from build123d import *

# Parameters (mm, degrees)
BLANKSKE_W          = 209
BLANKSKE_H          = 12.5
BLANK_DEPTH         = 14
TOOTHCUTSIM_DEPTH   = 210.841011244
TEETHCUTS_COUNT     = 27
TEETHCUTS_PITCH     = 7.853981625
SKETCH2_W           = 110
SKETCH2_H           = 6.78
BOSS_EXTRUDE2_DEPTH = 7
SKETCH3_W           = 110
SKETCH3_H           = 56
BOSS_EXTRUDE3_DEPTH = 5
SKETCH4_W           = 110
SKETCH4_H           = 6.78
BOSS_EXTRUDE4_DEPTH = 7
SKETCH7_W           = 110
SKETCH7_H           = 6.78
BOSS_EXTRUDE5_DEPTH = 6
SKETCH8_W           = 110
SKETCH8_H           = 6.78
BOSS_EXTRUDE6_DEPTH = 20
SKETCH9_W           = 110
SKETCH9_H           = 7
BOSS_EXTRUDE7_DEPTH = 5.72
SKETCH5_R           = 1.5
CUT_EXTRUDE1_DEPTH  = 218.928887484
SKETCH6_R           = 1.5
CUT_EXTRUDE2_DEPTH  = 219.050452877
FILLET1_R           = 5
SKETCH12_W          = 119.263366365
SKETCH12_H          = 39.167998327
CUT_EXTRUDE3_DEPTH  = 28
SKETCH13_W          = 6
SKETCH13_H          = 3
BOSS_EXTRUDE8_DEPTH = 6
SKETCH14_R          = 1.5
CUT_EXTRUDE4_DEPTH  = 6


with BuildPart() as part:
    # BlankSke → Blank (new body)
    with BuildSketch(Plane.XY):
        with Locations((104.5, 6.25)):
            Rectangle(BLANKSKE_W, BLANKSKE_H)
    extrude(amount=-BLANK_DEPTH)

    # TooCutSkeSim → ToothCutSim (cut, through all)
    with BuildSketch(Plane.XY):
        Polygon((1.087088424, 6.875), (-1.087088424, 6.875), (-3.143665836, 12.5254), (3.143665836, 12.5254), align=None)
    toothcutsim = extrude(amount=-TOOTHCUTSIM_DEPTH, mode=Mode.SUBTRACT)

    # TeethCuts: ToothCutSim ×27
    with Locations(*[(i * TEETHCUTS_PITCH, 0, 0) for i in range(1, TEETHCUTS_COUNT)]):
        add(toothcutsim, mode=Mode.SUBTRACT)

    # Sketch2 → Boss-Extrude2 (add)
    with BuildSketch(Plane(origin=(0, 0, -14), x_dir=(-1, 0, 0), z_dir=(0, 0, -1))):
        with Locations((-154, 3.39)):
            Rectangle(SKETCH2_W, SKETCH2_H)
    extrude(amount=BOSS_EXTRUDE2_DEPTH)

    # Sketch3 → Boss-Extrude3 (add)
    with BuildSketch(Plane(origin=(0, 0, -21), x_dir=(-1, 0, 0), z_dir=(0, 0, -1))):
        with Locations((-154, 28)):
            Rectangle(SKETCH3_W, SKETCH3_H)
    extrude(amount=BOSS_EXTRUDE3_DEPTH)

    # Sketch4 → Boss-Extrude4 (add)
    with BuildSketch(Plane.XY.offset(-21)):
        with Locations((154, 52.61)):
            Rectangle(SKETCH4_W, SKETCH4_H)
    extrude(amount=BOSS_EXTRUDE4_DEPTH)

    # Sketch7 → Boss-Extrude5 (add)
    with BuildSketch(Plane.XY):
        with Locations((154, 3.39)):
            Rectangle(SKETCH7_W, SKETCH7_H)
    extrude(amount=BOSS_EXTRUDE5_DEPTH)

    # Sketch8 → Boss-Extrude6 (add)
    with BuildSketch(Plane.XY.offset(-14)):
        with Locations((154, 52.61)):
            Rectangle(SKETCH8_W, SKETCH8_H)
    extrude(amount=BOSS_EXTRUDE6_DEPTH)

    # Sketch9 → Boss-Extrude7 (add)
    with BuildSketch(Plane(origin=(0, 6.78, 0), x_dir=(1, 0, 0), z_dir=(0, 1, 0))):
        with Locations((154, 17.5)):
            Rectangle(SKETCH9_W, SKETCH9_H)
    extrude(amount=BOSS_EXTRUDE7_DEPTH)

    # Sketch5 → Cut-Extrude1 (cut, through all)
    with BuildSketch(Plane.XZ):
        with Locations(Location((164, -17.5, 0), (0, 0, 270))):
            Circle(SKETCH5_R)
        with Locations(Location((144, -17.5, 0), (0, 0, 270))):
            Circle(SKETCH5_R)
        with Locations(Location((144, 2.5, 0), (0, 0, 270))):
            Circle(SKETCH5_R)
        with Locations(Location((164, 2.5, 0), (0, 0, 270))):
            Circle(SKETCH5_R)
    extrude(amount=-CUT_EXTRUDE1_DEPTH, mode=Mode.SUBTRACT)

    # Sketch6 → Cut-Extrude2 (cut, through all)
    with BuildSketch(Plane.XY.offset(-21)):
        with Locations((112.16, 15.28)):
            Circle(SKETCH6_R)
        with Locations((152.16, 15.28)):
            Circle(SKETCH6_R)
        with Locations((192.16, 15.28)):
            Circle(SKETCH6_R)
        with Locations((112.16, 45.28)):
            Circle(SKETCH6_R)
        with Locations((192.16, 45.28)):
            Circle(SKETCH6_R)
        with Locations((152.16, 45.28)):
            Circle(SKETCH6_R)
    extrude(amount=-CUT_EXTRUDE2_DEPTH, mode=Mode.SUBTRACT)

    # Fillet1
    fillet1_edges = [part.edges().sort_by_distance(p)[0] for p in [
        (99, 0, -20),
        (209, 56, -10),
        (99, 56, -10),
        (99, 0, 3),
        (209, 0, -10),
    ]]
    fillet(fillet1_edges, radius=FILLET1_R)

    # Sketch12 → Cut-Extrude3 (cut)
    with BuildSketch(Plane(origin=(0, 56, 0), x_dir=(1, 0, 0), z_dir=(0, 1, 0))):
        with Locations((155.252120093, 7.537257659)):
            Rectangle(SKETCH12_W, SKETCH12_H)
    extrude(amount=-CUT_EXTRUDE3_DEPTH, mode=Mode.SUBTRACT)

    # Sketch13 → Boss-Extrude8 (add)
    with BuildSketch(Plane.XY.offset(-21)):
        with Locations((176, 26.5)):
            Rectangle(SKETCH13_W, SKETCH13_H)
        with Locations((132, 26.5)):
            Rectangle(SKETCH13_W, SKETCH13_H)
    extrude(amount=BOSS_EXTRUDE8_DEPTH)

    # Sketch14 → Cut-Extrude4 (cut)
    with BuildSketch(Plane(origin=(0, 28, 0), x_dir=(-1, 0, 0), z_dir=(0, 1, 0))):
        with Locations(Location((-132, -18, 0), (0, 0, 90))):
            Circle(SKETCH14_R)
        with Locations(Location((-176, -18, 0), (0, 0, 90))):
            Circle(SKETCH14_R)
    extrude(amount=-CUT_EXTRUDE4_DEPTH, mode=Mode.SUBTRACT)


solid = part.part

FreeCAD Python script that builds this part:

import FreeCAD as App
import Part
import Sketcher
from FreeCAD import Vector
Q = App.Units.Quantity


def edges_at(feature, points):
    """Names of the edges that pass closest to the given points."""
    edges = feature.Shape.Edges
    near = lambda p: min(range(len(edges)), key=lambda i: edges[i].distToShape(Part.Vertex(*p))[0])
    return sorted({f"Edge{near(p) + 1}" for p in points})

doc = App.newDocument("Part")
body = doc.addObject("PartDesign::Body", "Body")

# Sketch on XY plane
sketch1 = body.newObject("Sketcher::SketchObject", "Sketch")
sketch1.AttachmentSupport = (doc.getObject("XY_Plane"), [""])
sketch1.MapMode = "FlatFace"
sketch1.addGeometry([
    Part.LineSegment(Vector(0, 12, 0), Vector(0, 0, 0)),
    Part.LineSegment(Vector(0, 0, 0), Vector(209, 0, 0)),
    Part.LineSegment(Vector(209, 0, 0), Vector(209, 12, 0)),
    Part.LineSegment(Vector(209, 12, 0), Vector(0, 12, 0)),
], False)
sketch1.addConstraint([
    Sketcher.Constraint("Coincident", 0, 2, 1, 1),
    Sketcher.Constraint("Coincident", 1, 2, 2, 1),
    Sketcher.Constraint("Coincident", 2, 2, 3, 1),
    Sketcher.Constraint("Coincident", 3, 2, 0, 1),
    Sketcher.Constraint("Vertical", 0),
    Sketcher.Constraint("Horizontal", 1),
    Sketcher.Constraint("Vertical", 2),
    Sketcher.Constraint("Horizontal", 3),
    Sketcher.Constraint("Coincident", 0, 2, -1, 1),
    Sketcher.Constraint("DistanceX", 1, 1, 1, 2, Q("209 mm")),
    Sketcher.Constraint("DistanceY", 0, 2, 0, 1, Q("12.5 mm")),
])
pad1 = body.newObject("PartDesign::Pad", "Pad")
pad1.Profile = sketch1
pad1.Length = 14
pad1.Reversed = True

# Sketch on XY plane
sketch2 = body.newObject("Sketcher::SketchObject", "Sketch001")
sketch2.AttachmentSupport = (doc.getObject("XY_Plane"), [""])
sketch2.MapMode = "FlatFace"
sketch2.addGeometry([
    Part.LineSegment(Vector(-1.1, 6.9, 0), Vector(1.1, 6.9, 0)),
    Part.LineSegment(Vector(1.1, 6.9, 0), Vector(3.1, 12.5, 0)),
    Part.LineSegment(Vector(3.1, 12.5, 0), Vector(-3.1, 12.5, 0)),
    Part.LineSegment(Vector(-3.1, 12.5, 0), Vector(-1.1, 6.9, 0)),
], False)
sketch2.addConstraint([
    Sketcher.Constraint("Coincident", 0, 2, 1, 1),
    Sketcher.Constraint("Coincident", 1, 2, 2, 1),
    Sketcher.Constraint("Coincident", 2, 2, 3, 1),
    Sketcher.Constraint("Coincident", 3, 2, 0, 1),
    Sketcher.Constraint("Horizontal", 0),
    Sketcher.Constraint("Horizontal", 2),
    Sketcher.Constraint("Equal", 1, 3),
    Sketcher.Constraint("Angle", 1, Q("70 deg")),
    Sketcher.Constraint("DistanceY", -1, 1, 0, 2, Q("6.875 mm")),
    Sketcher.Constraint("DistanceX", 2, 2, 2, 1, Q("6.287332 mm")),
    Sketcher.Constraint("DistanceY", -1, 1, 1, 2, Q("12.5254 mm")),
    Sketcher.Constraint("DistanceX", -1, 1, 0, 2, Q("1.087088 mm")),
])
pocket1 = body.newObject("PartDesign::Pocket", "Pocket")
pocket1.Profile = sketch2
pocket1.Type = "ThroughAll"
doc.recompute()

linearpattern = body.newObject("PartDesign::LinearPattern", "LinearPattern")
linearpattern.Originals = [pocket1]
linearpattern.Direction = (doc.getObject("X_Axis"), [""])
linearpattern.Mode = "offset"
linearpattern.Offset = 7.853982
linearpattern.Occurrences = 27
body.Tip = linearpattern

# Sketch on XY plane
sketch3 = body.newObject("Sketcher::SketchObject", "Sketch002")
sketch3.AttachmentSupport = (doc.getObject("XY_Plane"), [""])
sketch3.MapMode = "FlatFace"
sketch3.AttachmentOffset = App.Placement(Vector(0, 0, -14), App.Rotation())
sketch3.addGeometry([
    Part.LineSegment(Vector(209, 7, 0), Vector(209, 0, 0)),
    Part.LineSegment(Vector(209, 0, 0), Vector(99, 0, 0)),
    Part.LineSegment(Vector(99, 0, 0), Vector(99, 7, 0)),
    Part.LineSegment(Vector(99, 7, 0), Vector(209, 7, 0)),
], False)
sketch3.addConstraint([
    Sketcher.Constraint("Coincident", 0, 2, 1, 1),
    Sketcher.Constraint("Coincident", 1, 2, 2, 1),
    Sketcher.Constraint("Coincident", 2, 2, 3, 1),
    Sketcher.Constraint("Coincident", 3, 2, 0, 1),
    Sketcher.Constraint("Vertical", 0),
    Sketcher.Constraint("Horizontal", 1),
    Sketcher.Constraint("Vertical", 2),
    Sketcher.Constraint("Horizontal", 3),
    Sketcher.Constraint("PointOnObject", 0, 2, -1),
    Sketcher.Constraint("DistanceX", 1, 2, 1, 1, Q("110 mm")),
    Sketcher.Constraint("DistanceX", -1, 1, 0, 2, Q("209 mm")),
    Sketcher.Constraint("DistanceY", 0, 2, 0, 1, Q("6.78 mm")),
])
pad2 = body.newObject("PartDesign::Pad", "Pad001")
pad2.Profile = sketch3
pad2.Length = 7
pad2.Reversed = True

# Sketch on XY plane
sketch4 = body.newObject("Sketcher::SketchObject", "Sketch003")
sketch4.AttachmentSupport = (doc.getObject("XY_Plane"), [""])
sketch4.MapMode = "FlatFace"
sketch4.AttachmentOffset = App.Placement(Vector(0, 0, -21), App.Rotation())
sketch4.addGeometry([
    Part.LineSegment(Vector(209, 56, 0), Vector(209, 0, 0)),
    Part.LineSegment(Vector(209, 0, 0), Vector(99, 0, 0)),
    Part.LineSegment(Vector(99, 0, 0), Vector(99, 56, 0)),
    Part.LineSegment(Vector(99, 56, 0), Vector(209, 56, 0)),
], False)
sketch4.addConstraint([
    Sketcher.Constraint("Coincident", 0, 2, 1, 1),
    Sketcher.Constraint("Coincident", 1, 2, 2, 1),
    Sketcher.Constraint("Coincident", 2, 2, 3, 1),
    Sketcher.Constraint("Coincident", 3, 2, 0, 1),
    Sketcher.Constraint("Vertical", 0),
    Sketcher.Constraint("Horizontal", 1),
    Sketcher.Constraint("Vertical", 2),
    Sketcher.Constraint("Horizontal", 3),
    Sketcher.Constraint("PointOnObject", 0, 2, -1),
    Sketcher.Constraint("DistanceX", 1, 2, 1, 1, Q("110 mm")),
    Sketcher.Constraint("DistanceY", 0, 2, 0, 1, Q("56 mm")),
    Sketcher.Constraint("DistanceX", -1, 1, 0, 2, Q("209 mm")),
])
pad3 = body.newObject("PartDesign::Pad", "Pad002")
pad3.Profile = sketch4
pad3.Length = 5
pad3.Reversed = True

# Sketch on XY plane
sketch5 = body.newObject("Sketcher::SketchObject", "Sketch004")
sketch5.AttachmentSupport = (doc.getObject("XY_Plane"), [""])
sketch5.MapMode = "FlatFace"
sketch5.AttachmentOffset = App.Placement(Vector(0, 0, -21), App.Rotation())
sketch5.addGeometry([
    Part.LineSegment(Vector(99, 56, 0), Vector(99, 49, 0)),
    Part.LineSegment(Vector(99, 49, 0), Vector(209, 49, 0)),
    Part.LineSegment(Vector(209, 49, 0), Vector(209, 56, 0)),
    Part.LineSegment(Vector(209, 56, 0), Vector(99, 56, 0)),
], False)
sketch5.addConstraint([
    Sketcher.Constraint("Coincident", 0, 2, 1, 1),
    Sketcher.Constraint("Coincident", 1, 2, 2, 1),
    Sketcher.Constraint("Coincident", 2, 2, 3, 1),
    Sketcher.Constraint("Coincident", 3, 2, 0, 1),
    Sketcher.Constraint("Vertical", 0),
    Sketcher.Constraint("Horizontal", 1),
    Sketcher.Constraint("Vertical", 2),
    Sketcher.Constraint("Horizontal", 3),
    Sketcher.Constraint("DistanceX", 1, 1, 1, 2, Q("110 mm")),
    Sketcher.Constraint("DistanceX", -1, 1, 0, 2, Q("99 mm")),
    Sketcher.Constraint("DistanceY", -1, 1, 2, 2, Q("56 mm")),
    Sketcher.Constraint("DistanceY", 0, 2, 0, 1, Q("6.78 mm")),
])
pad4 = body.newObject("PartDesign::Pad", "Pad003")
pad4.Profile = sketch5
pad4.Length = 7

# Sketch on XY plane
sketch6 = body.newObject("Sketcher::SketchObject", "Sketch005")
sketch6.AttachmentSupport = (doc.getObject("XY_Plane"), [""])
sketch6.MapMode = "FlatFace"
sketch6.addGeometry([
    Part.LineSegment(Vector(99, 7, 0), Vector(99, 0, 0)),
    Part.LineSegment(Vector(99, 0, 0), Vector(209, 0, 0)),
    Part.LineSegment(Vector(209, 0, 0), Vector(209, 7, 0)),
    Part.LineSegment(Vector(209, 7, 0), Vector(99, 7, 0)),
], False)
sketch6.addConstraint([
    Sketcher.Constraint("Coincident", 0, 2, 1, 1),
    Sketcher.Constraint("Coincident", 1, 2, 2, 1),
    Sketcher.Constraint("Coincident", 2, 2, 3, 1),
    Sketcher.Constraint("Coincident", 3, 2, 0, 1),
    Sketcher.Constraint("Vertical", 0),
    Sketcher.Constraint("Horizontal", 1),
    Sketcher.Constraint("Vertical", 2),
    Sketcher.Constraint("Horizontal", 3),
    Sketcher.Constraint("PointOnObject", 0, 2, -1),
    Sketcher.Constraint("DistanceX", 1, 1, 1, 2, Q("110 mm")),
    Sketcher.Constraint("DistanceX", -1, 1, 0, 2, Q("99 mm")),
    Sketcher.Constraint("DistanceY", 0, 2, 0, 1, Q("6.78 mm")),
])
pad5 = body.newObject("PartDesign::Pad", "Pad004")
pad5.Profile = sketch6
pad5.Length = 6

# Sketch on XY plane
sketch7 = body.newObject("Sketcher::SketchObject", "Sketch006")
sketch7.AttachmentSupport = (doc.getObject("XY_Plane"), [""])
sketch7.MapMode = "FlatFace"
sketch7.AttachmentOffset = App.Placement(Vector(0, 0, -14), App.Rotation())
sketch7.addGeometry([
    Part.LineSegment(Vector(99, 56, 0), Vector(99, 49, 0)),
    Part.LineSegment(Vector(99, 49, 0), Vector(209, 49, 0)),
    Part.LineSegment(Vector(209, 49, 0), Vector(209, 56, 0)),
    Part.LineSegment(Vector(209, 56, 0), Vector(99, 56, 0)),
], False)
sketch7.addConstraint([
    Sketcher.Constraint("Coincident", 0, 2, 1, 1),
    Sketcher.Constraint("Coincident", 1, 2, 2, 1),
    Sketcher.Constraint("Coincident", 2, 2, 3, 1),
    Sketcher.Constraint("Coincident", 3, 2, 0, 1),
    Sketcher.Constraint("Vertical", 0),
    Sketcher.Constraint("Horizontal", 1),
    Sketcher.Constraint("Vertical", 2),
    Sketcher.Constraint("Horizontal", 3),
    Sketcher.Constraint("DistanceX", 1, 1, 1, 2, Q("110 mm")),
    Sketcher.Constraint("DistanceX", -1, 1, 0, 2, Q("99 mm")),
    Sketcher.Constraint("DistanceY", -1, 1, 2, 2, Q("56 mm")),
    Sketcher.Constraint("DistanceY", 0, 2, 0, 1, Q("6.78 mm")),
])
pad6 = body.newObject("PartDesign::Pad", "Pad005")
pad6.Profile = sketch7
pad6.Length = 20

# Sketch on XZ plane
sketch8 = body.newObject("Sketcher::SketchObject", "Sketch007")
sketch8.AttachmentSupport = (doc.getObject("XZ_Plane"), [""])
sketch8.MapMode = "FlatFace"
sketch8.AttachmentOffset = App.Placement(Vector(0, 0, -6.78), App.Rotation())
sketch8.addGeometry([
    Part.LineSegment(Vector(99, -21, 0), Vector(99, -14, 0)),
    Part.LineSegment(Vector(99, -14, 0), Vector(209, -14, 0)),
    Part.LineSegment(Vector(209, -14, 0), Vector(209, -21, 0)),
    Part.LineSegment(Vector(209, -21, 0), Vector(99, -21, 0)),
], False)
sketch8.addConstraint([
    Sketcher.Constraint("Coincident", 0, 2, 1, 1),
    Sketcher.Constraint("Coincident", 1, 2, 2, 1),
    Sketcher.Constraint("Coincident", 2, 2, 3, 1),
    Sketcher.Constraint("Coincident", 3, 2, 0, 1),
    Sketcher.Constraint("Vertical", 0),
    Sketcher.Constraint("Horizontal", 1),
    Sketcher.Constraint("Vertical", 2),
    Sketcher.Constraint("Horizontal", 3),
    Sketcher.Constraint("DistanceX", 1, 1, 1, 2, Q("110 mm")),
    Sketcher.Constraint("DistanceY", 0, 1, 0, 2, Q("7 mm")),
    Sketcher.Constraint("DistanceX", -1, 1, 0, 2, Q("99 mm")),
    Sketcher.Constraint("DistanceY", 0, 2, -1, 1, Q("14 mm")),
])
pad7 = body.newObject("PartDesign::Pad", "Pad006")
pad7.Profile = sketch8
pad7.Length = 5.72
pad7.Reversed = True

# Sketch on XZ plane
sketch9 = body.newObject("Sketcher::SketchObject", "Sketch008")
sketch9.AttachmentSupport = (doc.getObject("XZ_Plane"), [""])
sketch9.MapMode = "FlatFace"
sketch9.addGeometry([
    Part.Circle(Vector(164, -17.5, 0), Vector(0, 0, 1), 1.5),
    Part.Circle(Vector(144, -17.5, 0), Vector(0, 0, 1), 1.5),
    Part.Circle(Vector(144, 2.5, 0), Vector(0, 0, 1), 1.5),
    Part.Circle(Vector(164, 2.5, 0), Vector(0, 0, 1), 1.5),
], False)
sketch9.addConstraint([
    Sketcher.Constraint("Equal", 0, 1),
    Sketcher.Constraint("Equal", 1, 2),
    Sketcher.Constraint("Equal", 2, 3),
    Sketcher.Constraint("Horizontal", 0, 3, 1, 3),
    Sketcher.Constraint("Horizontal", 2, 3, 3, 3),
    Sketcher.Constraint("Vertical", 1, 3, 2, 3),
    Sketcher.Constraint("Vertical", 0, 3, 3, 3),
    Sketcher.Constraint("Diameter", 0, Q("3 mm")),
    Sketcher.Constraint("DistanceX", -1, 1, 0, 3, Q("164 mm")),
    Sketcher.Constraint("DistanceX", -1, 1, 1, 3, Q("144 mm")),
    Sketcher.Constraint("DistanceY", 1, 3, 2, 3, Q("20 mm")),
    Sketcher.Constraint("DistanceY", 0, 3, -1, 1, Q("17.5 mm")),
])
pocket2 = body.newObject("PartDesign::Pocket", "Pocket001")
pocket2.Profile = sketch9
pocket2.Type = "ThroughAll"

# Sketch on XY plane
sketch10 = body.newObject("Sketcher::SketchObject", "Sketch009")
sketch10.AttachmentSupport = (doc.getObject("XY_Plane"), [""])
sketch10.MapMode = "FlatFace"
sketch10.AttachmentOffset = App.Placement(Vector(0, 0, -21), App.Rotation())
sketch10.addGeometry([
    Part.Circle(Vector(112.2, 15.3, 0), Vector(0, 0, 1), 1.5),  # 0
    Part.Circle(Vector(152.2, 15.3, 0), Vector(0, 0, 1), 1.5),  # 1
    Part.Circle(Vector(192.2, 15.3, 0), Vector(0, 0, 1), 1.5),  # 2
    Part.Circle(Vector(112.2, 45.3, 0), Vector(0, 0, 1), 1.5),  # 3
    Part.Circle(Vector(192.2, 45.3, 0), Vector(0, 0, 1), 1.5),  # 4
    Part.Circle(Vector(152.2, 45.3, 0), Vector(0, 0, 1), 1.5),  # 5
], False)
sketch10.addConstraint([
    Sketcher.Constraint("Equal", 0, 1),
    Sketcher.Constraint("Equal", 1, 2),
    Sketcher.Constraint("Equal", 2, 3),
    Sketcher.Constraint("Equal", 3, 4),
    Sketcher.Constraint("Equal", 4, 5),
    Sketcher.Constraint("Horizontal", 0, 3, 1, 3),
    Sketcher.Constraint("Horizontal", 1, 3, 2, 3),
    Sketcher.Constraint("Horizontal", 3, 3, 4, 3),
    Sketcher.Constraint("Horizontal", 4, 3, 5, 3),
    Sketcher.Constraint("Vertical", 0, 3, 3, 3),
    Sketcher.Constraint("Vertical", 2, 3, 4, 3),
    Sketcher.Constraint("Vertical", 1, 3, 5, 3),
    Sketcher.Constraint("Diameter", 0, Q("3 mm")),
    Sketcher.Constraint("DistanceX", 0, 3, 1, 3, Q("40 mm")),
    Sketcher.Constraint("DistanceX", 1, 3, 2, 3, Q("40 mm")),
    Sketcher.Constraint("DistanceY", 0, 3, 3, 3, Q("30 mm")),
    Sketcher.Constraint("DistanceX", -1, 1, 0, 3, Q("112.16 mm")),
    Sketcher.Constraint("DistanceY", -1, 1, 0, 3, Q("15.28 mm")),
])
pocket3 = body.newObject("PartDesign::Pocket", "Pocket002")
pocket3.Profile = sketch10
pocket3.Type = "ThroughAll"
doc.recompute()

fillet = body.newObject("PartDesign::Fillet", "Fillet")
fillet.Base = (pocket3, edges_at(pocket3, [
    (99, 0, -20),
    (209, 56, -10),
    (99, 56, -10),
    (99, 0, 3),
    (209, 0, -10),
]))
fillet.Radius = 5

# Sketch on XZ plane
sketch11 = body.newObject("Sketcher::SketchObject", "Sketch010")
sketch11.AttachmentSupport = (doc.getObject("XZ_Plane"), [""])
sketch11.MapMode = "FlatFace"
sketch11.AttachmentOffset = App.Placement(Vector(0, 0, -56), App.Rotation())
sketch11.addGeometry([
    Part.LineSegment(Vector(96, -27, 0), Vector(96, 12, 0)),
    Part.LineSegment(Vector(96, 12, 0), Vector(215, 12, 0)),
    Part.LineSegment(Vector(215, 12, 0), Vector(215, -27, 0)),
    Part.LineSegment(Vector(215, -27, 0), Vector(96, -27, 0)),
], False)
sketch11.addConstraint([
    Sketcher.Constraint("Coincident", 0, 2, 1, 1),
    Sketcher.Constraint("Coincident", 1, 2, 2, 1),
    Sketcher.Constraint("Coincident", 2, 2, 3, 1),
    Sketcher.Constraint("Coincident", 3, 2, 0, 1),
    Sketcher.Constraint("Vertical", 0),
    Sketcher.Constraint("Horizontal", 1),
    Sketcher.Constraint("Vertical", 2),
    Sketcher.Constraint("Horizontal", 3),
    Sketcher.Constraint("DistanceY", 0, 1, 0, 2, Q("39.167998 mm")),
    Sketcher.Constraint("DistanceX", 1, 1, 1, 2, Q("119.263366 mm")),
    Sketcher.Constraint("DistanceY", -1, 1, 0, 2, Q("12.046742 mm")),
    Sketcher.Constraint("DistanceX", -1, 1, 0, 2, Q("95.620437 mm")),
])
pocket4 = body.newObject("PartDesign::Pocket", "Pocket003")
pocket4.Profile = sketch11
pocket4.Length = 28
pocket4.Reversed = True

# Sketch on XY plane
sketch12 = body.newObject("Sketcher::SketchObject", "Sketch011")
sketch12.AttachmentSupport = (doc.getObject("XY_Plane"), [""])
sketch12.MapMode = "FlatFace"
sketch12.AttachmentOffset = App.Placement(Vector(0, 0, -21), App.Rotation())
sketch12.addGeometry([
    Part.LineSegment(Vector(173, 28, 0), Vector(173, 25, 0)),  # 0
    Part.LineSegment(Vector(173, 25, 0), Vector(179, 25, 0)),  # 1
    Part.LineSegment(Vector(179, 25, 0), Vector(179, 28, 0)),  # 2
    Part.LineSegment(Vector(179, 28, 0), Vector(173, 28, 0)),  # 3
    Part.LineSegment(Vector(129, 28, 0), Vector(129, 25, 0)),  # 4
    Part.LineSegment(Vector(129, 25, 0), Vector(135, 25, 0)),  # 5
    Part.LineSegment(Vector(135, 25, 0), Vector(135, 28, 0)),  # 6
    Part.LineSegment(Vector(135, 28, 0), Vector(129, 28, 0)),  # 7
], False)
sketch12.addConstraint([
    Sketcher.Constraint("Coincident", 0, 2, 1, 1),
    Sketcher.Constraint("Coincident", 1, 2, 2, 1),
    Sketcher.Constraint("Coincident", 2, 2, 3, 1),
    Sketcher.Constraint("Coincident", 3, 2, 0, 1),
    Sketcher.Constraint("Coincident", 4, 2, 5, 1),
    Sketcher.Constraint("Coincident", 5, 2, 6, 1),
    Sketcher.Constraint("Coincident", 6, 2, 7, 1),
    Sketcher.Constraint("Coincident", 7, 2, 4, 1),
    Sketcher.Constraint("Vertical", 0),
    Sketcher.Constraint("Horizontal", 1),
    Sketcher.Constraint("Vertical", 2),
    Sketcher.Constraint("Horizontal", 3),
    Sketcher.Constraint("Vertical", 4),
    Sketcher.Constraint("Horizontal", 5),
    Sketcher.Constraint("Vertical", 6),
    Sketcher.Constraint("Horizontal", 7),
    Sketcher.Constraint("Horizontal", 1, 2, 4, 2),
    Sketcher.Constraint("Horizontal", 3, 2, 6, 2),
    Sketcher.Constraint("Equal", 3, 5),
    Sketcher.Constraint("DistanceX", 1, 1, 1, 2, Q("6 mm")),
    Sketcher.Constraint("DistanceY", 0, 2, 0, 1, Q("3 mm")),
    Sketcher.Constraint("DistanceX", -1, 1, 0, 2, Q("173 mm")),
    Sketcher.Constraint("DistanceY", -1, 1, 0, 2, Q("25 mm")),
    Sketcher.Constraint("DistanceX", -1, 1, 4, 2, Q("129 mm")),
])
pad8 = body.newObject("PartDesign::Pad", "Pad007")
pad8.Profile = sketch12
pad8.Length = 6

# Sketch on XZ plane
sketch13 = body.newObject("Sketcher::SketchObject", "Sketch012")
sketch13.AttachmentSupport = (doc.getObject("XZ_Plane"), [""])
sketch13.MapMode = "FlatFace"
sketch13.AttachmentOffset = App.Placement(Vector(0, 0, -28), App.Rotation())
sketch13.addGeometry([
    Part.Circle(Vector(132, -18, 0), Vector(0, 0, 1), 1.5),
    Part.Circle(Vector(176, -18, 0), Vector(0, 0, 1), 1.5),
], False)
sketch13.addConstraint([
    Sketcher.Constraint("Equal", 0, 1),
    Sketcher.Constraint("Horizontal", 0, 3, 1, 3),
    Sketcher.Constraint("Diameter", 0, Q("3 mm")),
    Sketcher.Constraint("DistanceX", -1, 1, 0, 3, Q("132 mm")),
    Sketcher.Constraint("DistanceY", 0, 3, -1, 1, Q("18 mm")),
    Sketcher.Constraint("DistanceX", -1, 1, 1, 3, Q("176 mm")),
])
pocket5 = body.newObject("PartDesign::Pocket", "Pocket004")
pocket5.Profile = sketch13
pocket5.Length = 6
pocket5.Reversed = True

doc.recompute()
